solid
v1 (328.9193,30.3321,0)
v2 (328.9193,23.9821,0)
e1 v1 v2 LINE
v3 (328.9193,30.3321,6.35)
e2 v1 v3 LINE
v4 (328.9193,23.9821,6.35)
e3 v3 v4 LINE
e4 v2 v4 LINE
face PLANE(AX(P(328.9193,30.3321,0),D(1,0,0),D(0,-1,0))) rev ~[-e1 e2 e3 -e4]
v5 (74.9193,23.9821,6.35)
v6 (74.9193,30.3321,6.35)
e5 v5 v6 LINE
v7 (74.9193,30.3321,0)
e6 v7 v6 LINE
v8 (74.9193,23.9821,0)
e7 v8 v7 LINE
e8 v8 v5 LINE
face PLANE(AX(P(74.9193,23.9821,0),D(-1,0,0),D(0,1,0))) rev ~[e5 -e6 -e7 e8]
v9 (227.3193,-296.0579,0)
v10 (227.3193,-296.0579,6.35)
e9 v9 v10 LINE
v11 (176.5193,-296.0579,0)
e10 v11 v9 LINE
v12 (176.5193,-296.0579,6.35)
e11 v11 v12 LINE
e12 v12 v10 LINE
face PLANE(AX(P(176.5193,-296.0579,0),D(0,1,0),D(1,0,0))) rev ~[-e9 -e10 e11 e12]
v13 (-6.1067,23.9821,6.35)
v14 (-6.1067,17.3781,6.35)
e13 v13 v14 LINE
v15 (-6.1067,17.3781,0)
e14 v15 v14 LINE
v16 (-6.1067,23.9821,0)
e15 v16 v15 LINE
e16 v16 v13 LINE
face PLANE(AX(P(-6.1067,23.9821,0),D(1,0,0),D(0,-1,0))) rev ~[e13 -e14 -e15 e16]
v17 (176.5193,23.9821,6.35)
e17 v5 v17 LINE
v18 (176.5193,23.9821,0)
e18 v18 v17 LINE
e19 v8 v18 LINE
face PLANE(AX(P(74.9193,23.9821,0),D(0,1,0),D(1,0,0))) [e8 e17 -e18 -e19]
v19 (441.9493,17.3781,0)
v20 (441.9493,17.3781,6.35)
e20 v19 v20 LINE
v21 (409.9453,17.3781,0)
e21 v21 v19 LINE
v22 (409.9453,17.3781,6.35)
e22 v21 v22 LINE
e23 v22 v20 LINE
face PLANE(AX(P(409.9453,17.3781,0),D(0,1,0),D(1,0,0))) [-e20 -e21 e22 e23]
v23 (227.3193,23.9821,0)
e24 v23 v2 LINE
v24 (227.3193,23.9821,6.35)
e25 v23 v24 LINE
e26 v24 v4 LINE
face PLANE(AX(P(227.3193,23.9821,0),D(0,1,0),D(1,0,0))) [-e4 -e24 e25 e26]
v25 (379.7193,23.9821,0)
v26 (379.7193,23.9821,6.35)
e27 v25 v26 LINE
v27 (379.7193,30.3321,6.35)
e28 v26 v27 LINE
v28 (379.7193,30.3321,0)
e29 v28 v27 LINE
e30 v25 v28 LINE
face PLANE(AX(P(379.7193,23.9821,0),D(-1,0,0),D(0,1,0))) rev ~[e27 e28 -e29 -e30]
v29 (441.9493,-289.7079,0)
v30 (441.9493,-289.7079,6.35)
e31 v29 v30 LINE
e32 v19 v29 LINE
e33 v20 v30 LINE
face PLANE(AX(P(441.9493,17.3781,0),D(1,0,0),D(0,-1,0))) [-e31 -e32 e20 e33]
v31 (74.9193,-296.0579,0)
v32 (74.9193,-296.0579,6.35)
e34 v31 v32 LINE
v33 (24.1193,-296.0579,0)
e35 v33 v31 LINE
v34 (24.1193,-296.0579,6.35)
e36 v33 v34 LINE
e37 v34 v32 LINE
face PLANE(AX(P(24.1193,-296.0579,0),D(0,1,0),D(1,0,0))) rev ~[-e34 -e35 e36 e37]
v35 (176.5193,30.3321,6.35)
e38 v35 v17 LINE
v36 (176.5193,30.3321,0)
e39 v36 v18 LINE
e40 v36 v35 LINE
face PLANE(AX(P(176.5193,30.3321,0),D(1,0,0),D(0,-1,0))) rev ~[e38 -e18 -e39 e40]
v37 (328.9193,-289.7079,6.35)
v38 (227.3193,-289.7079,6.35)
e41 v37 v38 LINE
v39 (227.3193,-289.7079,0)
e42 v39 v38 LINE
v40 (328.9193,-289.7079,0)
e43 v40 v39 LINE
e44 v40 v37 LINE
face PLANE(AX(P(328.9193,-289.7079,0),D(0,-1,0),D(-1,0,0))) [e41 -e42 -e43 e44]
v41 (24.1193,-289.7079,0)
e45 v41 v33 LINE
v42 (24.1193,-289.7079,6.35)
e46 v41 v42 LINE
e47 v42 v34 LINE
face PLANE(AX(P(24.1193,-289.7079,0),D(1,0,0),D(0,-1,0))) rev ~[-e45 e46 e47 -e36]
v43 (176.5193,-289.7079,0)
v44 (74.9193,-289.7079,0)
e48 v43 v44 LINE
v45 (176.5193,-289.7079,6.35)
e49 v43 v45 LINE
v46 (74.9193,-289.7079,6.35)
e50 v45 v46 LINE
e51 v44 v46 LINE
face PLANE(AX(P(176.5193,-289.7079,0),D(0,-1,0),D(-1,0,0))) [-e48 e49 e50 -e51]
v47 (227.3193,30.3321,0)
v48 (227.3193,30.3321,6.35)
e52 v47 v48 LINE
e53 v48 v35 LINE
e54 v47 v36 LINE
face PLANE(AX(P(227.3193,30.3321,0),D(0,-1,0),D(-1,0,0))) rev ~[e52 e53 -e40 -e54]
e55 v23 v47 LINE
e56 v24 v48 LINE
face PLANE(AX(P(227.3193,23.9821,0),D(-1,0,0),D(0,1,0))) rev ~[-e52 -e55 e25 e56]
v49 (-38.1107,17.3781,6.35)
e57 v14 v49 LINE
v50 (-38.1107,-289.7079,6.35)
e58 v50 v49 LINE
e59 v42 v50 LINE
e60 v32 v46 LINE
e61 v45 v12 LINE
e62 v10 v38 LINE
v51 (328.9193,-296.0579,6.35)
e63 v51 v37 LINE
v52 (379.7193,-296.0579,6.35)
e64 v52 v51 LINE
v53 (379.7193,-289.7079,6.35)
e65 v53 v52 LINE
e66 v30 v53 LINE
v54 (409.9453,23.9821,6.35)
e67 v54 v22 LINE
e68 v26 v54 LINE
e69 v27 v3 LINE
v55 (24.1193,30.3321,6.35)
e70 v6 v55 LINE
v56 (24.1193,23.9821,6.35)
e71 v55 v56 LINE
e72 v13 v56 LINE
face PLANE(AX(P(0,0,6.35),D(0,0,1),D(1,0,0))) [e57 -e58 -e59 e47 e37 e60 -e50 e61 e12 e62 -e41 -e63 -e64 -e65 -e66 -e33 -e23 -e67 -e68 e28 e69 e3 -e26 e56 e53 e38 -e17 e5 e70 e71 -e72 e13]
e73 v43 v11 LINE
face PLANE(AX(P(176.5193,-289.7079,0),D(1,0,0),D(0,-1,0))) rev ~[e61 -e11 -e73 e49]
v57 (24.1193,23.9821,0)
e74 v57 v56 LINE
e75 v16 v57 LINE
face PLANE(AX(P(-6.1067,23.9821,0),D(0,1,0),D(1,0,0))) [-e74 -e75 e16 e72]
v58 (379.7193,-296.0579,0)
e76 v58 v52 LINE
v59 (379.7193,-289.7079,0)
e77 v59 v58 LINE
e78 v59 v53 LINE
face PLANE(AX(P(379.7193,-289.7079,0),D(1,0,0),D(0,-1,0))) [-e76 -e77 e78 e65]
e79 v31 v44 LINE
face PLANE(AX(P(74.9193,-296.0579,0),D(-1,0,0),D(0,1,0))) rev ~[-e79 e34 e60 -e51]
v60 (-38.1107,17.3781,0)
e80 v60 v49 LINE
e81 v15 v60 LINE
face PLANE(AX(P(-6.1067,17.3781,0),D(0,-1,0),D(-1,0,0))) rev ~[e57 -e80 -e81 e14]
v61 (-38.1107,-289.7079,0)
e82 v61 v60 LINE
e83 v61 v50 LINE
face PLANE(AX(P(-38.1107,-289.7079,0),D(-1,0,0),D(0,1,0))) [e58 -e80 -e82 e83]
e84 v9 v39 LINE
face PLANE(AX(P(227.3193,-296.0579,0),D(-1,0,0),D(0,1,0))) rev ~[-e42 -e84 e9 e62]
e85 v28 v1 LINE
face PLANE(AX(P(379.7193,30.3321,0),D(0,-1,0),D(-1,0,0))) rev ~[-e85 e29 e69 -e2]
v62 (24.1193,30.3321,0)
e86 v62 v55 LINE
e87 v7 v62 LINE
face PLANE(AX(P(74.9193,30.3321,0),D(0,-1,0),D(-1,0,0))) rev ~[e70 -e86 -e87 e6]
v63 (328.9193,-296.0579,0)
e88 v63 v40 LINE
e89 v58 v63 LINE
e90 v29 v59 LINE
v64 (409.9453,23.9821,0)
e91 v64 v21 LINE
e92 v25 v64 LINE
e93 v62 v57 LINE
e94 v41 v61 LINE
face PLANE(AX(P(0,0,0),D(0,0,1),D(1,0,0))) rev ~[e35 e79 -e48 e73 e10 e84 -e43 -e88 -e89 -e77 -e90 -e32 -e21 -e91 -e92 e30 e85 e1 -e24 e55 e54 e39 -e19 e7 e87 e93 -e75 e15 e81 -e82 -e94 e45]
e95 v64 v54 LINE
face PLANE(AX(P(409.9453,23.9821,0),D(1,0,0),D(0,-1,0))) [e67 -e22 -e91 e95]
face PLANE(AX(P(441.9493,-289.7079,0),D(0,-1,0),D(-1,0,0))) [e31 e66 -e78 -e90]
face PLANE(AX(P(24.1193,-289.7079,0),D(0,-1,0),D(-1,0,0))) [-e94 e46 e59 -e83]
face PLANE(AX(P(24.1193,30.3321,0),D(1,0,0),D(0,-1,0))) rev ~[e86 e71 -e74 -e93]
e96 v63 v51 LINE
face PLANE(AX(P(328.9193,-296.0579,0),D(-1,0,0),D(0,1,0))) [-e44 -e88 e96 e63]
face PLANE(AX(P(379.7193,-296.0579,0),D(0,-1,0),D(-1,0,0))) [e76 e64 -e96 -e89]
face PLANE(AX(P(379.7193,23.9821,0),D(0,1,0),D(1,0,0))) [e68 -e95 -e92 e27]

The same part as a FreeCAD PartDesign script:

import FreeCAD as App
import Part
import Sketcher

V = App.Vector
Q = App.Units.Quantity


def add_polygon(sketch, points):
    """Adds a closed chain of lines whose ends are joined by coincident constraints."""
    first, n = sketch.GeometryCount, len(points)
    for a, b in zip(points, points[1:] + points[:1]):
        sketch.addGeometry(Part.LineSegment(App.Vector(*a, 0), App.Vector(*b, 0)), False)
    for i in range(n):
        sketch.addConstraint(Sketcher.Constraint("Coincident", first + i, 2, first + (i + 1) % n, 1))

doc = App.newDocument("Part")
body = doc.addObject("PartDesign::Body", "Body")

sketch1 = body.newObject("Sketcher::SketchObject", "Sketch")
sketch1.AttachmentSupport = (doc.getObject("XY_Plane"), [""])
sketch1.MapMode = "FlatFace"
add_polygon(sketch1, [(24, 24), (-6, 24), (-6, 17), (-38, 17), (-38, -290), (24, -290), (24, -296), (75, -296), (75, -290), (177, -290), (177, -296), (227, -296), (227, -290), (329, -290), (329, -296), (380, -296), (380, -290), (442, -290), (442, 17), (410, 17), (410, 24), (380, 24), (380, 30), (329, 30), (329, 24), (227, 24), (227, 30), (177, 30), (177, 24), (75, 24), (75, 30), (24, 30)])
sketch1.addConstraint([
    Sketcher.Constraint("Horizontal", 0),
    Sketcher.Constraint("Vertical", 1),
    Sketcher.Constraint("Horizontal", 2),
    Sketcher.Constraint("Vertical", 3),
    Sketcher.Constraint("Horizontal", 4),
    Sketcher.Constraint("Vertical", 5),
    Sketcher.Constraint("Horizontal", 6),
    Sketcher.Constraint("Vertical", 7),
    Sketcher.Constraint("Horizontal", 8),
    Sketcher.Constraint("Vertical", 9),
    Sketcher.Constraint("Horizontal", 10),
    Sketcher.Constraint("Vertical", 11),
    Sketcher.Constraint("Horizontal", 12),
    Sketcher.Constraint("Vertical", 13),
    Sketcher.Constraint("Horizontal", 14),
    Sketcher.Constraint("Vertical", 15),
    Sketcher.Constraint("Horizontal", 16),
    Sketcher.Constraint("Vertical", 17),
    Sketcher.Constraint("Horizontal", 18),
    Sketcher.Constraint("Vertical", 19),
    Sketcher.Constraint("Horizontal", 20),
    Sketcher.Constraint("Vertical", 21),
    Sketcher.Constraint("Horizontal", 22),
    Sketcher.Constraint("Vertical", 23),
    Sketcher.Constraint("Horizontal", 24),
    Sketcher.Constraint("Vertical", 25),
    Sketcher.Constraint("Horizontal", 26),
    Sketcher.Constraint("Vertical", 27),
    Sketcher.Constraint("Horizontal", 28),
    Sketcher.Constraint("Vertical", 29),
    Sketcher.Constraint("Horizontal", 30),
    Sketcher.Constraint("Vertical", 31),
    Sketcher.Constraint("Horizontal", 4, 2, 7, 2),
    Sketcher.Constraint("Horizontal", 6, 2, 9, 2),
    Sketcher.Constraint("Horizontal", 8, 2, 11, 2),
    Sketcher.Constraint("Horizontal", 10, 2, 13, 2),
    Sketcher.Constraint("Horizontal", 12, 2, 15, 2),
    Sketcher.Constraint("Horizontal", 2, 2, 17, 2),
    Sketcher.Constraint("Horizontal", 0, 2, 19, 2),
    Sketcher.Constraint("Horizontal", 20, 2, 23, 2),
    Sketcher.Constraint("Horizontal", 22, 2, 25, 2),
    Sketcher.Constraint("Horizontal", 24, 2, 27, 2),
    Sketcher.Constraint("Horizontal", 26, 2, 29, 2),
    Sketcher.Constraint("Vertical", 15, 2, 20, 2),
    Sketcher.Constraint("Vertical", 13, 2, 22, 2),
    Sketcher.Constraint("Vertical", 11, 2, 24, 2),
    Sketcher.Constraint("Vertical", 9, 2, 26, 2),
    Sketcher.Constraint("Vertical", 7, 2, 28, 2),
    Sketcher.Constraint("Vertical", 5, 2, 30, 2),
    Sketcher.Constraint("Equal", 6, 10),
    Sketcher.Constraint("Equal", 8, 12),
    Sketcher.Constraint("Equal", 10, 14),
    Sketcher.Constraint("Equal", 4, 16),
    Sketcher.Constraint("Equal", 2, 18),
    Sketcher.Constraint("Equal", 15, 21),
    Sketcher.Constraint("DistanceX", 6, 1, 6, 2, Q("2 in")),
    Sketcher.Constraint("DistanceX", 8, 1, 8, 2, Q("4 in")),
    Sketcher.Constraint("DistanceX", 2, 2, 2, 1, Q("1.26 in")),
    Sketcher.Constraint("DistanceY", 1, 2, 1, 1, Q("0.26 in")),
    Sketcher.Constraint("DistanceY", 5, 2, 5, 1, Q("0.25 in")),
    Sketcher.Constraint("DistanceY", 3, 2, 0, 2, Q("12.35 in")),
    Sketcher.Constraint("DistanceX", 0, 2, 0, 1, Q("1.19 in")),
    Sketcher.Constraint("DistanceX", 0, 2, -1, 1, 6.1067),
    Sketcher.Constraint("DistanceY", -1, 1, 0, 2, 23.982),
])
pad1 = body.newObject("PartDesign::Pad", "Pad")
pad1.Profile = sketch1
pad1.Length = Q("0.25 in")

doc.recompute()
